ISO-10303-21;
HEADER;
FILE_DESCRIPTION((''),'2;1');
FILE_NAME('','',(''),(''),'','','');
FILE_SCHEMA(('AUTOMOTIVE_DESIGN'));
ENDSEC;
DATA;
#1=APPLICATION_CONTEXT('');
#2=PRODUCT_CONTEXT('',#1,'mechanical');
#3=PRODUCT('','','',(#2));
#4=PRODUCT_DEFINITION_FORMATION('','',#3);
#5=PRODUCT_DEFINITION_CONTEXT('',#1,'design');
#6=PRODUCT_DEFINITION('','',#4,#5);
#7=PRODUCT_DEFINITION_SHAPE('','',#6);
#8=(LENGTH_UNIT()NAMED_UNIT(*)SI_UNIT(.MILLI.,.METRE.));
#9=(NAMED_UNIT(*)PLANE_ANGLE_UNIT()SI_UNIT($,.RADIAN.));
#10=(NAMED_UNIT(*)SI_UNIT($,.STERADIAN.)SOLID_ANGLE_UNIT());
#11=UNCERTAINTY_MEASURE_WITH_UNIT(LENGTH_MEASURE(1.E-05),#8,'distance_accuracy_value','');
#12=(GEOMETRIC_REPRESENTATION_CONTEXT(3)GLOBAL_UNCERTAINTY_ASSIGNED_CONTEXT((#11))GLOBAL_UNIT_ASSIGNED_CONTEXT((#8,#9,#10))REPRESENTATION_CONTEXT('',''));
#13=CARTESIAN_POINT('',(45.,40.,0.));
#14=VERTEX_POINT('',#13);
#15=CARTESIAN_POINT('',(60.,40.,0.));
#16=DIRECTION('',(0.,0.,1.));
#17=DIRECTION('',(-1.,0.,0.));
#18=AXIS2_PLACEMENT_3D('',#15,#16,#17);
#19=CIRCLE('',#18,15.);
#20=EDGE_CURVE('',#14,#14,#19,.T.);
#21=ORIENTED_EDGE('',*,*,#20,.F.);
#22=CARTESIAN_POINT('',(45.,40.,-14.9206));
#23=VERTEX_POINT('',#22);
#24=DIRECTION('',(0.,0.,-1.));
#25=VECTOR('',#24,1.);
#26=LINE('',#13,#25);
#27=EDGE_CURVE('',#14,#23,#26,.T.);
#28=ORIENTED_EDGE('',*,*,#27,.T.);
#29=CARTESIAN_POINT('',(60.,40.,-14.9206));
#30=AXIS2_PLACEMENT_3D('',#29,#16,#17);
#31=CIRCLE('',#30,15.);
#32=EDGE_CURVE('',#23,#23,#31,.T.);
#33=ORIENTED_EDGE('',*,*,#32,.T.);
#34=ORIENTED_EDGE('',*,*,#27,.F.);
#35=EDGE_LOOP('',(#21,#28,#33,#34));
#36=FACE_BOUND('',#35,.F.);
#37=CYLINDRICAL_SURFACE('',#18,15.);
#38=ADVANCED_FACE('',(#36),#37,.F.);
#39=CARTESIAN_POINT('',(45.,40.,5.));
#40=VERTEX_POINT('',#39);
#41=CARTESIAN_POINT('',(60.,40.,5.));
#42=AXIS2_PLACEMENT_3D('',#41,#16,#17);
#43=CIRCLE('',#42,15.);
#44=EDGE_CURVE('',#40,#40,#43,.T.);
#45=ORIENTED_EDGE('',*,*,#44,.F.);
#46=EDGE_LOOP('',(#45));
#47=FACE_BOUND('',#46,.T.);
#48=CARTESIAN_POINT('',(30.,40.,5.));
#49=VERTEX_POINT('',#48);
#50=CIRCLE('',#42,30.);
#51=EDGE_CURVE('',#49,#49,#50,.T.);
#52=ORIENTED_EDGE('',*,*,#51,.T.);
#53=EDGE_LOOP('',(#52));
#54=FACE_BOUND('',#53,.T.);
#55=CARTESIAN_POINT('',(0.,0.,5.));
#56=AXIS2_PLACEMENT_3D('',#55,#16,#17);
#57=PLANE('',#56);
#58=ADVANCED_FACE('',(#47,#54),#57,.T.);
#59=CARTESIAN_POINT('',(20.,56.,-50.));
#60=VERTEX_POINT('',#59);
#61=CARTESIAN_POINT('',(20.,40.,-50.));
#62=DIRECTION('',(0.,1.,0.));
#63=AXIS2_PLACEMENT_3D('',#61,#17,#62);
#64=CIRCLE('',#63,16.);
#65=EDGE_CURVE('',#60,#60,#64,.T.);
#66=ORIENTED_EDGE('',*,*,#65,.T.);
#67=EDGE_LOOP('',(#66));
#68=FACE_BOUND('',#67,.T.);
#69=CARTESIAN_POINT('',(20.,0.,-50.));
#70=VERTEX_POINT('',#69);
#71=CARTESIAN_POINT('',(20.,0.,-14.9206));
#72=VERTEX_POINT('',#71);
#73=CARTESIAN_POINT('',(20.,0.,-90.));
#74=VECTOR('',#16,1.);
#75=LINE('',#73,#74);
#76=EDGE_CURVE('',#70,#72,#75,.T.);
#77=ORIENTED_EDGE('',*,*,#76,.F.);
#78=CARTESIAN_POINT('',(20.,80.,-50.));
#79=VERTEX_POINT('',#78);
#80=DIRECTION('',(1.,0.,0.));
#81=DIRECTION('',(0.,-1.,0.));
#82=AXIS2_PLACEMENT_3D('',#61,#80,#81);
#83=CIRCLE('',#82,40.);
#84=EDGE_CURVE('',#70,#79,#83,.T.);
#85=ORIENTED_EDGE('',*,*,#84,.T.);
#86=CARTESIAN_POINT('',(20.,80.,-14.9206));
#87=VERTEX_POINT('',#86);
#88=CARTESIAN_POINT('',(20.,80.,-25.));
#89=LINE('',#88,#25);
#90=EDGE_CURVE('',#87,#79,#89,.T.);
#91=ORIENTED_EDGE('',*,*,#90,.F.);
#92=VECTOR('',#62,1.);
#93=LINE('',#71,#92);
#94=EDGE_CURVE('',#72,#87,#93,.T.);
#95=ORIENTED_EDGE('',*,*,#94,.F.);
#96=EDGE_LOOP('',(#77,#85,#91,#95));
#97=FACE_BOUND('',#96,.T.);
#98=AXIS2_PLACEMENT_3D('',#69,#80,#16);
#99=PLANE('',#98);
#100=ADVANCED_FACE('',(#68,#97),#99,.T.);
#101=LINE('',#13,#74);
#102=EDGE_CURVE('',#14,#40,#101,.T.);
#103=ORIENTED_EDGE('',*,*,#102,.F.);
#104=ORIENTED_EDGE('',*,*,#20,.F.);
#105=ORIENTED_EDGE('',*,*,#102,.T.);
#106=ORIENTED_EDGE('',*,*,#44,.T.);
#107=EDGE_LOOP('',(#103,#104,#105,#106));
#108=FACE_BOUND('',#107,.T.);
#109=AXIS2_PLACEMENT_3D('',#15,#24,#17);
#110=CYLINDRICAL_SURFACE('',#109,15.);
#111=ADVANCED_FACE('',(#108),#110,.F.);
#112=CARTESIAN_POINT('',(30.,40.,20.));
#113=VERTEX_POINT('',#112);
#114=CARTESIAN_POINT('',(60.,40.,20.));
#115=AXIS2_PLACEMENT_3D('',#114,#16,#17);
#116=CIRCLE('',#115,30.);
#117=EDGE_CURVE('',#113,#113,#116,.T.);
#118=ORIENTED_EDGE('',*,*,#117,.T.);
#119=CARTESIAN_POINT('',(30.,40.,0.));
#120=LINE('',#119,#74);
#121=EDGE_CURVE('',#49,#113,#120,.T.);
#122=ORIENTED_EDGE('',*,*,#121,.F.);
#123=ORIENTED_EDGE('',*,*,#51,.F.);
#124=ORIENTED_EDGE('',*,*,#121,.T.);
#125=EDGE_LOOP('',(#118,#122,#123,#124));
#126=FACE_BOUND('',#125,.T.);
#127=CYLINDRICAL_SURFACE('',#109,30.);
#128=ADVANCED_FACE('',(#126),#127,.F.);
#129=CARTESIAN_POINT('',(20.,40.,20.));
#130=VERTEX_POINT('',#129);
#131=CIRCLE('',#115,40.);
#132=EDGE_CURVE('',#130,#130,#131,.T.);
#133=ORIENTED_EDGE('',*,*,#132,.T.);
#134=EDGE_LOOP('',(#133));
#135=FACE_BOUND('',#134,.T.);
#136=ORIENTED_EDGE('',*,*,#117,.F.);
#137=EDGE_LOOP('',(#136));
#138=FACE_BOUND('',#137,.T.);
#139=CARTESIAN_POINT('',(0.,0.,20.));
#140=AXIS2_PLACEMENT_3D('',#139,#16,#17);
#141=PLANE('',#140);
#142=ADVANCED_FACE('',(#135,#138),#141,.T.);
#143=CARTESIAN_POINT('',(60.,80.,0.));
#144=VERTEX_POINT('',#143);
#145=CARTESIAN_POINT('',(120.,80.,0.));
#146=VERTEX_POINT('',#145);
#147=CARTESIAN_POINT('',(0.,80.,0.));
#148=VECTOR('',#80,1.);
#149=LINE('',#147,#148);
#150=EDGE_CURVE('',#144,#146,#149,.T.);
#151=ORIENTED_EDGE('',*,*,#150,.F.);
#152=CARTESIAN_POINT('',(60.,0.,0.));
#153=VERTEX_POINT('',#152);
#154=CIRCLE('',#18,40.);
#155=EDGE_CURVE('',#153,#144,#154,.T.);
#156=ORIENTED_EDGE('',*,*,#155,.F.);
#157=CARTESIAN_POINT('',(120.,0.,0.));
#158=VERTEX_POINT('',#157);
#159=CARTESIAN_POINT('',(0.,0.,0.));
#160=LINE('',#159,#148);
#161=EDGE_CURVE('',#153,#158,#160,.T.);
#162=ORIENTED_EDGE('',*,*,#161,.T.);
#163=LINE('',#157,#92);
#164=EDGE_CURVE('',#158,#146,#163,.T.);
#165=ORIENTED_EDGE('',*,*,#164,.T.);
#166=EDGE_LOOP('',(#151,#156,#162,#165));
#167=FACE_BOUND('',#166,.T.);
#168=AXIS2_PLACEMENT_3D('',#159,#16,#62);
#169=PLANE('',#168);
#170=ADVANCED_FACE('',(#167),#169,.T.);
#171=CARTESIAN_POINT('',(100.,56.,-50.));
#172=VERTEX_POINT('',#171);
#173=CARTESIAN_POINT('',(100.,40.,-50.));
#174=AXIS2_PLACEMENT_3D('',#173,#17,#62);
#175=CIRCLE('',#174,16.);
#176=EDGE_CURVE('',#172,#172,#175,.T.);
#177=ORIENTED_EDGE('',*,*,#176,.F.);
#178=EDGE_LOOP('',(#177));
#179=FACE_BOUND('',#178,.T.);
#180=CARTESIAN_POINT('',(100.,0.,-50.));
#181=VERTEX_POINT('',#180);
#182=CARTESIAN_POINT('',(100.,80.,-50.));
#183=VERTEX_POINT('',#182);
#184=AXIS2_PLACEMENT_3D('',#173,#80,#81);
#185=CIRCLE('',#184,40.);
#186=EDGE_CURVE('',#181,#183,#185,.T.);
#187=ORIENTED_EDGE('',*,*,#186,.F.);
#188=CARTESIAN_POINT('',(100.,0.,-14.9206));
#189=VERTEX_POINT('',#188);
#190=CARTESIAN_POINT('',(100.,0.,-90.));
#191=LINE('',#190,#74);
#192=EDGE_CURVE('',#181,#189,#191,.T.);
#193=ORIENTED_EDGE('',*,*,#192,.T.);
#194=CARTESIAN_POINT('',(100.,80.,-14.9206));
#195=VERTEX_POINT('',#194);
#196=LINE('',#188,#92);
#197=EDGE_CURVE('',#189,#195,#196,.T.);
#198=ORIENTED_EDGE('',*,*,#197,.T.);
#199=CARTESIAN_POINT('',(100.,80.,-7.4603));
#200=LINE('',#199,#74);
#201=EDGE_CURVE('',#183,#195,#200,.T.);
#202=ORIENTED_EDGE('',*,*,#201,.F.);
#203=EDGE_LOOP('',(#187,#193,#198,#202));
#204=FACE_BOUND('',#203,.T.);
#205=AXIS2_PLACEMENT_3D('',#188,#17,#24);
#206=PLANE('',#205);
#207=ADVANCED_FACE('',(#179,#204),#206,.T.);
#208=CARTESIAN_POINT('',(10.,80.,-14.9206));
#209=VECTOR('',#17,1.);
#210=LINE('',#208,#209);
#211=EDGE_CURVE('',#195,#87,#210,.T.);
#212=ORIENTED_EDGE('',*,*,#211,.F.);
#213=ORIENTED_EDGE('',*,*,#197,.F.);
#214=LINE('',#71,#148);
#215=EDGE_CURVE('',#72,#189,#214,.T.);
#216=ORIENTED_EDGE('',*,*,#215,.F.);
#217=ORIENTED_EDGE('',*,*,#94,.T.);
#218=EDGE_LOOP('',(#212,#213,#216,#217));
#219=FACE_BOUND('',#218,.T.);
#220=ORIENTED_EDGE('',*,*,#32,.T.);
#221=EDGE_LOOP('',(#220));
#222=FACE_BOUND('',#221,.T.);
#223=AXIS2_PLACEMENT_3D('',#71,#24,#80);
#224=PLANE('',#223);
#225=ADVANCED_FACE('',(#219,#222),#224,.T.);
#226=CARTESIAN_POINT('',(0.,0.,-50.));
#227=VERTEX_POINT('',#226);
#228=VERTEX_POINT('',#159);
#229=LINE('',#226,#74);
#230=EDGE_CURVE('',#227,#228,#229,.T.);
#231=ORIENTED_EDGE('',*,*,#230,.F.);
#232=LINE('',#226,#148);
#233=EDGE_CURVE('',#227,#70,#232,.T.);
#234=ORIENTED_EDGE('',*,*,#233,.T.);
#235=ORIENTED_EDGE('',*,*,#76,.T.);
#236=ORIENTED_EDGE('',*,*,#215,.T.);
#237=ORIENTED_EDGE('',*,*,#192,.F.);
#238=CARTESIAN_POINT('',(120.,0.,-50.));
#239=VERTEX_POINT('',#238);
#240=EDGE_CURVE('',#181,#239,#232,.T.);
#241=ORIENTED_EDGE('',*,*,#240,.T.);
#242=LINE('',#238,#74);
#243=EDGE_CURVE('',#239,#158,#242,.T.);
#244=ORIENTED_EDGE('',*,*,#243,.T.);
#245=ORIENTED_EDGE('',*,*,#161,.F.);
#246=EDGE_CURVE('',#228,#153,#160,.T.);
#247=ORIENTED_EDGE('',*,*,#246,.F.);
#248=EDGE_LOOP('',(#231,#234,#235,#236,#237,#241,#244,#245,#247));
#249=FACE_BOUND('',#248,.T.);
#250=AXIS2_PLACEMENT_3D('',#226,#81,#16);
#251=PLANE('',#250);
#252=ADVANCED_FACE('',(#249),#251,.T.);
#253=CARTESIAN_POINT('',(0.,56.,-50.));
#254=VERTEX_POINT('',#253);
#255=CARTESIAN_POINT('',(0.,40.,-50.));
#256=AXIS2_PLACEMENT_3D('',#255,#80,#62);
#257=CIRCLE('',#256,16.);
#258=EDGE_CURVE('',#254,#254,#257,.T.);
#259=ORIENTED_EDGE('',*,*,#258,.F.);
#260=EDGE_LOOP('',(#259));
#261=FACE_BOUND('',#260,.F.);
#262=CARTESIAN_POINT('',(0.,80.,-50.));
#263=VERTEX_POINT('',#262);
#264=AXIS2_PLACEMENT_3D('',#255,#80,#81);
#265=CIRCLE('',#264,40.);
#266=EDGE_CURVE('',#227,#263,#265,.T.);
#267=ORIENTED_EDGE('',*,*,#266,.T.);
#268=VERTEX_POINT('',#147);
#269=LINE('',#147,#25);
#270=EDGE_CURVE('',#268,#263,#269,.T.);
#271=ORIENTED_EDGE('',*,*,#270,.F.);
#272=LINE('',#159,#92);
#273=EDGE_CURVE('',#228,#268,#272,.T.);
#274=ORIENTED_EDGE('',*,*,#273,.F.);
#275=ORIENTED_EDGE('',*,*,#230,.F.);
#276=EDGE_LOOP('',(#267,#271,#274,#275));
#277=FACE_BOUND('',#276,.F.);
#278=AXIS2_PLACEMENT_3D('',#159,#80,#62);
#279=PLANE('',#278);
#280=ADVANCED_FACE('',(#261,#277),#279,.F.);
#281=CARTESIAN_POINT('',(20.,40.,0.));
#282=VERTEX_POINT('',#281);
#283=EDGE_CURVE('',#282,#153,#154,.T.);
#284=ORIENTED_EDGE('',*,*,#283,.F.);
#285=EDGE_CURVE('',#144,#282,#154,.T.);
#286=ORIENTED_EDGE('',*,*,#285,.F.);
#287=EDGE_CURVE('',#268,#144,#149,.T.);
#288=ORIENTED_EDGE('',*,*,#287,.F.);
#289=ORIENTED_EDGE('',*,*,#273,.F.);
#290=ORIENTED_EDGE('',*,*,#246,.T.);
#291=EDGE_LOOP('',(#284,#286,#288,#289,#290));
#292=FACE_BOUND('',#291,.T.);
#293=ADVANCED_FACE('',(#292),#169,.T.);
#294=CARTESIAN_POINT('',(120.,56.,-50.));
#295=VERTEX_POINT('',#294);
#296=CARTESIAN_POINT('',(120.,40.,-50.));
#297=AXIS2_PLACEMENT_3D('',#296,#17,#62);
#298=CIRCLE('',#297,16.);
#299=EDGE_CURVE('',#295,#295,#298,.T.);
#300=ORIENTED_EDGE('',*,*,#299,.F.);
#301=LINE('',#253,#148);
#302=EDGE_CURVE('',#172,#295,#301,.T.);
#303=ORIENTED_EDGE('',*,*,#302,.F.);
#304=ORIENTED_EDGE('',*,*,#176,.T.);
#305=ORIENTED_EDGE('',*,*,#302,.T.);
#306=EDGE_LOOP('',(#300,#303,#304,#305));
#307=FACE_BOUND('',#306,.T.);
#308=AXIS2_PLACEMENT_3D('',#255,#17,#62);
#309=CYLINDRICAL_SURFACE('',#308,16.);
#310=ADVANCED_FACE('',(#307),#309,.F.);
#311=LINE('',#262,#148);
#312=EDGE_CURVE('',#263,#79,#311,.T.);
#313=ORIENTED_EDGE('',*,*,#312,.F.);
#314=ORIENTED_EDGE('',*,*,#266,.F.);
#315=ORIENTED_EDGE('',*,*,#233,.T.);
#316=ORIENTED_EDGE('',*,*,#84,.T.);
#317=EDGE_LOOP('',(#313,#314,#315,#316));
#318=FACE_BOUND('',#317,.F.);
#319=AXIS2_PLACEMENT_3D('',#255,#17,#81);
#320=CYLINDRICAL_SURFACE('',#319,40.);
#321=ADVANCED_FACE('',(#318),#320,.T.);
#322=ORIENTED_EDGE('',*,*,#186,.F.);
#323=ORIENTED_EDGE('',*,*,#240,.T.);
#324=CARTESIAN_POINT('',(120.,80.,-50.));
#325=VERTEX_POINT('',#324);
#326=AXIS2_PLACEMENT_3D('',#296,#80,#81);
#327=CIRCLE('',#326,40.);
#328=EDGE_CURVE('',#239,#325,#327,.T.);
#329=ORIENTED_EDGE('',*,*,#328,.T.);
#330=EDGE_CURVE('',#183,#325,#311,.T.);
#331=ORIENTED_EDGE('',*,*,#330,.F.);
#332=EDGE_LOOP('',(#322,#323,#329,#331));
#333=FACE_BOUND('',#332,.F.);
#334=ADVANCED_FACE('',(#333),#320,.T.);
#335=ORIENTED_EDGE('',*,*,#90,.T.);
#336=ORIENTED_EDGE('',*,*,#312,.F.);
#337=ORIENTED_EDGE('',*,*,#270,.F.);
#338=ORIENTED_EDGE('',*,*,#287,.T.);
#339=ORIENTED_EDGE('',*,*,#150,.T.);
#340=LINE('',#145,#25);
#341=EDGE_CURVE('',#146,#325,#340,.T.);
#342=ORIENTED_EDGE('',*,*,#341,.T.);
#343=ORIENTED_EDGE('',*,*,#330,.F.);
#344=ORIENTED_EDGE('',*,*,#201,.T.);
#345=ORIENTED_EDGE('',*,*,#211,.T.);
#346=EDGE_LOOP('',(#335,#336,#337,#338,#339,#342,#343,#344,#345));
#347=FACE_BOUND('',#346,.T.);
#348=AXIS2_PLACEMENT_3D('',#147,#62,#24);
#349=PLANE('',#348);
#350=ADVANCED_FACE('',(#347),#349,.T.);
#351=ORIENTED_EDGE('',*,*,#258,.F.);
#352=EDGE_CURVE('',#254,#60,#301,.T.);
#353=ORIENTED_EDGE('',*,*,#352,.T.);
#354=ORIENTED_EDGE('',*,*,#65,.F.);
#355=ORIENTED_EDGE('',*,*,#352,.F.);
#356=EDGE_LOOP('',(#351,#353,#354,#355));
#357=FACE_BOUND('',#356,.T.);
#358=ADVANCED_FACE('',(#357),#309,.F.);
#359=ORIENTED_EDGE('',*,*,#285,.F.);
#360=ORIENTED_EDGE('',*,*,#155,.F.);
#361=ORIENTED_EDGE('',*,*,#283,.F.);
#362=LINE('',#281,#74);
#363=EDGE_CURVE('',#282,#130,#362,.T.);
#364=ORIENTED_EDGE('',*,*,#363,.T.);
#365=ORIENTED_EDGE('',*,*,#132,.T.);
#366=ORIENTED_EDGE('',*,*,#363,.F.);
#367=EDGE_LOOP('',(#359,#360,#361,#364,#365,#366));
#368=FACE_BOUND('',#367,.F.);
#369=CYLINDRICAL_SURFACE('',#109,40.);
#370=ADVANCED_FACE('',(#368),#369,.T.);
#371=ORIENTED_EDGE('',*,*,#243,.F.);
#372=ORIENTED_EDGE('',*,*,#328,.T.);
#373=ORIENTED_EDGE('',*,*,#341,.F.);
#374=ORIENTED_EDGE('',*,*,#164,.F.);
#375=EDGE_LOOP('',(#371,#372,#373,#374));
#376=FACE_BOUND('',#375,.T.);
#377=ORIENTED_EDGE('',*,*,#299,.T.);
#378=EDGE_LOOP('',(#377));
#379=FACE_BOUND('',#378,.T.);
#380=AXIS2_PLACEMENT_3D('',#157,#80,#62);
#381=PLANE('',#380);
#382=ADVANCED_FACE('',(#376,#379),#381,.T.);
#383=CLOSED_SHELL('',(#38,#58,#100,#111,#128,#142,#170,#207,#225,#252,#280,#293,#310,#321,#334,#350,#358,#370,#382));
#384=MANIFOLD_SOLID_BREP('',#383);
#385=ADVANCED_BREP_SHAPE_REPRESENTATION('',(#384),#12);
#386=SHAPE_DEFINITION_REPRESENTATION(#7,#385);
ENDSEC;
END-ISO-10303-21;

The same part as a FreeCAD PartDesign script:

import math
import FreeCAD as App
import Part
import Sketcher
Q = App.Units.Quantity


def add_polygon(sketch, points):
    """Adds a closed chain of lines whose ends are joined by coincident constraints."""
    first, n = sketch.GeometryCount, len(points)
    for a, b in zip(points, points[1:] + points[:1]):
        sketch.addGeometry(Part.LineSegment(App.Vector(*a, 0), App.Vector(*b, 0)), False)
    for i in range(n):
        sketch.addConstraint(Sketcher.Constraint("Coincident", first + i, 2, first + (i + 1) % n, 1))

doc = App.newDocument("Part")
params = doc.addObject("Spreadsheet::Sheet", "Params")
for row, (alias, value) in enumerate([
    ("sketch1_diameter", "32 mm"),
    ("sketch1_radius", "40 mm"),
    ("sketch1_height", "50 mm"),
    ("pad1_length", "120 mm"),
    ("sketch2_width", "80 mm"),
    ("pocket1_length", "90 mm"),
    ("sketch3_diameter", "30 mm"),
    ("pocket2_length", "25 mm"),
    ("sketch4_diameter", "60 mm"),
    ("sketch4_diameter2", "30 mm"),
    ("pad2_length", "5 mm"),
    ("sketch5_diameter", "60 mm"),
    ("sketch5_diameter2", "80 mm"),
    ("pad3_length", "20 mm"),
], start=1):
    params.set(f"A{row}", alias)
    params.set(f"B{row}", "=" + value)
    params.setAlias(f"B{row}", alias)

body = doc.addObject("PartDesign::Body", "Body")

# Sketch on YZ plane
sketch1 = doc.addObject("Sketcher::SketchObject", "Sketch")
body.addObject(sketch1)
sketch1.AttachmentSupport = (doc.YZ_Plane, [""])
sketch1.MapMode = "FlatFace"
sketch1.addGeometry(Part.LineSegment(App.Vector(80, 0, 0), App.Vector(0, 0, 0)), False)
sketch1.addGeometry(Part.LineSegment(App.Vector(0, 0, 0), App.Vector(0, -50, 0)), False)
sketch1.addGeometry(Part.ArcOfCircle(Part.Circle(App.Vector(40, -50, 0), App.Vector(0, 0, 1), 40), math.radians(180), math.radians(360)), False)
sketch1.addGeometry(Part.LineSegment(App.Vector(80, -50, 0), App.Vector(80, 0, 0)), False)
sketch1.addGeometry(Part.Circle(App.Vector(40, -50, 0), App.Vector(0, 0, 1), 16), False)
sketch1.addConstraint(Sketcher.Constraint("Coincident", 0, 2, 1, 1))
sketch1.addConstraint(Sketcher.Constraint("Tangent", 1, 2, 2, 1))
sketch1.addConstraint(Sketcher.Constraint("Tangent", 2, 2, 3, 1))
sketch1.addConstraint(Sketcher.Constraint("Coincident", 3, 2, 0, 1))
sketch1.addConstraint(Sketcher.Constraint("Horizontal", 0))
sketch1.addConstraint(Sketcher.Constraint("Vertical", 1))
sketch1.addConstraint(Sketcher.Constraint("Vertical", 3))
sketch1.addConstraint(Sketcher.Constraint("Coincident", 0, 2, -1, 1))
sketch1.addConstraint(Sketcher.Constraint("Coincident", 4, 3, 2, 3))
sketch1.addConstraint(Sketcher.Constraint("Diameter", 4, Q("32 mm")))
sketch1.addConstraint(Sketcher.Constraint("Radius", 2, Q("40 mm")))
sketch1.addConstraint(Sketcher.Constraint("DistanceY", 1, 2, 1, 1, Q("50 mm")))
sketch1.setExpression("Constraints[9]", "Params.sketch1_diameter")
sketch1.setExpression("Constraints[10]", "Params.sketch1_radius")
sketch1.setExpression("Constraints[11]", "Params.sketch1_height")
pad1 = doc.addObject("PartDesign::Pad", "Pad")
body.addObject(pad1)
pad1.Profile = sketch1
pad1.setExpression("Length", "Params.pad1_length")

# Sketch on XZ plane
sketch2 = doc.addObject("Sketcher::SketchObject", "Sketch001")
body.addObject(sketch2)
sketch2.AttachmentSupport = (doc.XZ_Plane, [""])
sketch2.MapMode = "FlatFace"
add_polygon(sketch2, [(20, -15), (20, -90), (100, -90), (100, -15)])  # lines 0-3
sketch2.addConstraint(Sketcher.Constraint("Vertical", 0))
sketch2.addConstraint(Sketcher.Constraint("Horizontal", 1))
sketch2.addConstraint(Sketcher.Constraint("Vertical", 2))
sketch2.addConstraint(Sketcher.Constraint("Horizontal", 3))
sketch2.addConstraint(Sketcher.Constraint("DistanceX", -1, 1, 0, 2, Q("20 mm")))
sketch2.addConstraint(Sketcher.Constraint("DistanceX", 1, 1, 1, 2, Q("80 mm")))
sketch2.addConstraint(Sketcher.Constraint("DistanceY", 0, 2, -1, 1, Q("90 mm")))
sketch2.addConstraint(Sketcher.Constraint("DistanceY", 0, 2, 0, 1, Q("75.0794 mm")))
sketch2.setExpression("Constraints[9]", "Params.sketch2_width")
pocket1 = doc.addObject("PartDesign::Pocket", "Pocket")
body.addObject(pocket1)
pocket1.Profile = sketch2
pocket1.setExpression("Length", "Params.pocket1_length")

# Sketch on XY plane
sketch3 = doc.addObject("Sketcher::SketchObject", "Sketch002")
body.addObject(sketch3)
sketch3.AttachmentSupport = (doc.XY_Plane, [""])
sketch3.MapMode = "FlatFace"
sketch3.addGeometry(Part.Circle(App.Vector(60, 40, 0), App.Vector(0, 0, 1), 15), False)
sketch3.addConstraint(Sketcher.Constraint("Diameter", 0, Q("30 mm")))
sketch3.addConstraint(Sketcher.Constraint("DistanceX", -1, 1, 0, 3, Q("60 mm")))
sketch3.addConstraint(Sketcher.Constraint("DistanceY", -1, 1, 0, 3, Q("40 mm")))
sketch3.setExpression("Constraints[0]", "Params.sketch3_diameter")
pocket2 = doc.addObject("PartDesign::Pocket", "Pocket001")
body.addObject(pocket2)
pocket2.Profile = sketch3
pocket2.setExpression("Length", "Params.pocket2_length")

# Sketch on XY plane
sketch4 = doc.addObject("Sketcher::SketchObject", "Sketch003")
body.addObject(sketch4)
sketch4.AttachmentSupport = (doc.XY_Plane, [""])
sketch4.MapMode = "FlatFace"
sketch4.addGeometry(Part.Circle(App.Vector(60, 40, 0), App.Vector(0, 0, 1), 30), False)
sketch4.addGeometry(Part.Circle(App.Vector(60, 40, 0), App.Vector(0, 0, 1), 15), False)
sketch4.addConstraint(Sketcher.Constraint("Coincident", 1, 3, 0, 3))
sketch4.addConstraint(Sketcher.Constraint("Diameter", 0, Q("60 mm")))
sketch4.addConstraint(Sketcher.Constraint("Diameter", 1, Q("30 mm")))
sketch4.addConstraint(Sketcher.Constraint("DistanceX", -1, 1, 0, 3, Q("60 mm")))
sketch4.addConstraint(Sketcher.Constraint("DistanceY", -1, 1, 0, 3, Q("40 mm")))
sketch4.setExpression("Constraints[1]", "Params.sketch4_diameter")
sketch4.setExpression("Constraints[2]", "Params.sketch4_diameter2")
pad2 = doc.addObject("PartDesign::Pad", "Pad001")
body.addObject(pad2)
pad2.Profile = sketch4
pad2.setExpression("Length", "Params.pad2_length")

# Sketch on XY plane
sketch5 = doc.addObject("Sketcher::SketchObject", "Sketch004")
body.addObject(sketch5)
sketch5.AttachmentSupport = (doc.XY_Plane, [""])
sketch5.MapMode = "FlatFace"
sketch5.addGeometry(Part.Circle(App.Vector(60, 40, 0), App.Vector(0, 0, 1), 40), False)
sketch5.addGeometry(Part.Circle(App.Vector(60, 40, 0), App.Vector(0, 0, 1), 30), False)
sketch5.addConstraint(Sketcher.Constraint("Coincident", 1, 3, 0, 3))
sketch5.addConstraint(Sketcher.Constraint("Diameter", 1, Q("60 mm")))
sketch5.addConstraint(Sketcher.Constraint("Diameter", 0, Q("80 mm")))
sketch5.addConstraint(Sketcher.Constraint("DistanceX", -1, 1, 0, 3, Q("60 mm")))
sketch5.addConstraint(Sketcher.Constraint("DistanceY", -1, 1, 0, 3, Q("40 mm")))
sketch5.setExpression("Constraints[1]", "Params.sketch5_diameter")
sketch5.setExpression("Constraints[2]", "Params.sketch5_diameter2")
pad3 = doc.addObject("PartDesign::Pad", "Pad002")
body.addObject(pad3)
pad3.Profile = sketch5
pad3.setExpression("Length", "Params.pad3_length")

doc.recompute()
